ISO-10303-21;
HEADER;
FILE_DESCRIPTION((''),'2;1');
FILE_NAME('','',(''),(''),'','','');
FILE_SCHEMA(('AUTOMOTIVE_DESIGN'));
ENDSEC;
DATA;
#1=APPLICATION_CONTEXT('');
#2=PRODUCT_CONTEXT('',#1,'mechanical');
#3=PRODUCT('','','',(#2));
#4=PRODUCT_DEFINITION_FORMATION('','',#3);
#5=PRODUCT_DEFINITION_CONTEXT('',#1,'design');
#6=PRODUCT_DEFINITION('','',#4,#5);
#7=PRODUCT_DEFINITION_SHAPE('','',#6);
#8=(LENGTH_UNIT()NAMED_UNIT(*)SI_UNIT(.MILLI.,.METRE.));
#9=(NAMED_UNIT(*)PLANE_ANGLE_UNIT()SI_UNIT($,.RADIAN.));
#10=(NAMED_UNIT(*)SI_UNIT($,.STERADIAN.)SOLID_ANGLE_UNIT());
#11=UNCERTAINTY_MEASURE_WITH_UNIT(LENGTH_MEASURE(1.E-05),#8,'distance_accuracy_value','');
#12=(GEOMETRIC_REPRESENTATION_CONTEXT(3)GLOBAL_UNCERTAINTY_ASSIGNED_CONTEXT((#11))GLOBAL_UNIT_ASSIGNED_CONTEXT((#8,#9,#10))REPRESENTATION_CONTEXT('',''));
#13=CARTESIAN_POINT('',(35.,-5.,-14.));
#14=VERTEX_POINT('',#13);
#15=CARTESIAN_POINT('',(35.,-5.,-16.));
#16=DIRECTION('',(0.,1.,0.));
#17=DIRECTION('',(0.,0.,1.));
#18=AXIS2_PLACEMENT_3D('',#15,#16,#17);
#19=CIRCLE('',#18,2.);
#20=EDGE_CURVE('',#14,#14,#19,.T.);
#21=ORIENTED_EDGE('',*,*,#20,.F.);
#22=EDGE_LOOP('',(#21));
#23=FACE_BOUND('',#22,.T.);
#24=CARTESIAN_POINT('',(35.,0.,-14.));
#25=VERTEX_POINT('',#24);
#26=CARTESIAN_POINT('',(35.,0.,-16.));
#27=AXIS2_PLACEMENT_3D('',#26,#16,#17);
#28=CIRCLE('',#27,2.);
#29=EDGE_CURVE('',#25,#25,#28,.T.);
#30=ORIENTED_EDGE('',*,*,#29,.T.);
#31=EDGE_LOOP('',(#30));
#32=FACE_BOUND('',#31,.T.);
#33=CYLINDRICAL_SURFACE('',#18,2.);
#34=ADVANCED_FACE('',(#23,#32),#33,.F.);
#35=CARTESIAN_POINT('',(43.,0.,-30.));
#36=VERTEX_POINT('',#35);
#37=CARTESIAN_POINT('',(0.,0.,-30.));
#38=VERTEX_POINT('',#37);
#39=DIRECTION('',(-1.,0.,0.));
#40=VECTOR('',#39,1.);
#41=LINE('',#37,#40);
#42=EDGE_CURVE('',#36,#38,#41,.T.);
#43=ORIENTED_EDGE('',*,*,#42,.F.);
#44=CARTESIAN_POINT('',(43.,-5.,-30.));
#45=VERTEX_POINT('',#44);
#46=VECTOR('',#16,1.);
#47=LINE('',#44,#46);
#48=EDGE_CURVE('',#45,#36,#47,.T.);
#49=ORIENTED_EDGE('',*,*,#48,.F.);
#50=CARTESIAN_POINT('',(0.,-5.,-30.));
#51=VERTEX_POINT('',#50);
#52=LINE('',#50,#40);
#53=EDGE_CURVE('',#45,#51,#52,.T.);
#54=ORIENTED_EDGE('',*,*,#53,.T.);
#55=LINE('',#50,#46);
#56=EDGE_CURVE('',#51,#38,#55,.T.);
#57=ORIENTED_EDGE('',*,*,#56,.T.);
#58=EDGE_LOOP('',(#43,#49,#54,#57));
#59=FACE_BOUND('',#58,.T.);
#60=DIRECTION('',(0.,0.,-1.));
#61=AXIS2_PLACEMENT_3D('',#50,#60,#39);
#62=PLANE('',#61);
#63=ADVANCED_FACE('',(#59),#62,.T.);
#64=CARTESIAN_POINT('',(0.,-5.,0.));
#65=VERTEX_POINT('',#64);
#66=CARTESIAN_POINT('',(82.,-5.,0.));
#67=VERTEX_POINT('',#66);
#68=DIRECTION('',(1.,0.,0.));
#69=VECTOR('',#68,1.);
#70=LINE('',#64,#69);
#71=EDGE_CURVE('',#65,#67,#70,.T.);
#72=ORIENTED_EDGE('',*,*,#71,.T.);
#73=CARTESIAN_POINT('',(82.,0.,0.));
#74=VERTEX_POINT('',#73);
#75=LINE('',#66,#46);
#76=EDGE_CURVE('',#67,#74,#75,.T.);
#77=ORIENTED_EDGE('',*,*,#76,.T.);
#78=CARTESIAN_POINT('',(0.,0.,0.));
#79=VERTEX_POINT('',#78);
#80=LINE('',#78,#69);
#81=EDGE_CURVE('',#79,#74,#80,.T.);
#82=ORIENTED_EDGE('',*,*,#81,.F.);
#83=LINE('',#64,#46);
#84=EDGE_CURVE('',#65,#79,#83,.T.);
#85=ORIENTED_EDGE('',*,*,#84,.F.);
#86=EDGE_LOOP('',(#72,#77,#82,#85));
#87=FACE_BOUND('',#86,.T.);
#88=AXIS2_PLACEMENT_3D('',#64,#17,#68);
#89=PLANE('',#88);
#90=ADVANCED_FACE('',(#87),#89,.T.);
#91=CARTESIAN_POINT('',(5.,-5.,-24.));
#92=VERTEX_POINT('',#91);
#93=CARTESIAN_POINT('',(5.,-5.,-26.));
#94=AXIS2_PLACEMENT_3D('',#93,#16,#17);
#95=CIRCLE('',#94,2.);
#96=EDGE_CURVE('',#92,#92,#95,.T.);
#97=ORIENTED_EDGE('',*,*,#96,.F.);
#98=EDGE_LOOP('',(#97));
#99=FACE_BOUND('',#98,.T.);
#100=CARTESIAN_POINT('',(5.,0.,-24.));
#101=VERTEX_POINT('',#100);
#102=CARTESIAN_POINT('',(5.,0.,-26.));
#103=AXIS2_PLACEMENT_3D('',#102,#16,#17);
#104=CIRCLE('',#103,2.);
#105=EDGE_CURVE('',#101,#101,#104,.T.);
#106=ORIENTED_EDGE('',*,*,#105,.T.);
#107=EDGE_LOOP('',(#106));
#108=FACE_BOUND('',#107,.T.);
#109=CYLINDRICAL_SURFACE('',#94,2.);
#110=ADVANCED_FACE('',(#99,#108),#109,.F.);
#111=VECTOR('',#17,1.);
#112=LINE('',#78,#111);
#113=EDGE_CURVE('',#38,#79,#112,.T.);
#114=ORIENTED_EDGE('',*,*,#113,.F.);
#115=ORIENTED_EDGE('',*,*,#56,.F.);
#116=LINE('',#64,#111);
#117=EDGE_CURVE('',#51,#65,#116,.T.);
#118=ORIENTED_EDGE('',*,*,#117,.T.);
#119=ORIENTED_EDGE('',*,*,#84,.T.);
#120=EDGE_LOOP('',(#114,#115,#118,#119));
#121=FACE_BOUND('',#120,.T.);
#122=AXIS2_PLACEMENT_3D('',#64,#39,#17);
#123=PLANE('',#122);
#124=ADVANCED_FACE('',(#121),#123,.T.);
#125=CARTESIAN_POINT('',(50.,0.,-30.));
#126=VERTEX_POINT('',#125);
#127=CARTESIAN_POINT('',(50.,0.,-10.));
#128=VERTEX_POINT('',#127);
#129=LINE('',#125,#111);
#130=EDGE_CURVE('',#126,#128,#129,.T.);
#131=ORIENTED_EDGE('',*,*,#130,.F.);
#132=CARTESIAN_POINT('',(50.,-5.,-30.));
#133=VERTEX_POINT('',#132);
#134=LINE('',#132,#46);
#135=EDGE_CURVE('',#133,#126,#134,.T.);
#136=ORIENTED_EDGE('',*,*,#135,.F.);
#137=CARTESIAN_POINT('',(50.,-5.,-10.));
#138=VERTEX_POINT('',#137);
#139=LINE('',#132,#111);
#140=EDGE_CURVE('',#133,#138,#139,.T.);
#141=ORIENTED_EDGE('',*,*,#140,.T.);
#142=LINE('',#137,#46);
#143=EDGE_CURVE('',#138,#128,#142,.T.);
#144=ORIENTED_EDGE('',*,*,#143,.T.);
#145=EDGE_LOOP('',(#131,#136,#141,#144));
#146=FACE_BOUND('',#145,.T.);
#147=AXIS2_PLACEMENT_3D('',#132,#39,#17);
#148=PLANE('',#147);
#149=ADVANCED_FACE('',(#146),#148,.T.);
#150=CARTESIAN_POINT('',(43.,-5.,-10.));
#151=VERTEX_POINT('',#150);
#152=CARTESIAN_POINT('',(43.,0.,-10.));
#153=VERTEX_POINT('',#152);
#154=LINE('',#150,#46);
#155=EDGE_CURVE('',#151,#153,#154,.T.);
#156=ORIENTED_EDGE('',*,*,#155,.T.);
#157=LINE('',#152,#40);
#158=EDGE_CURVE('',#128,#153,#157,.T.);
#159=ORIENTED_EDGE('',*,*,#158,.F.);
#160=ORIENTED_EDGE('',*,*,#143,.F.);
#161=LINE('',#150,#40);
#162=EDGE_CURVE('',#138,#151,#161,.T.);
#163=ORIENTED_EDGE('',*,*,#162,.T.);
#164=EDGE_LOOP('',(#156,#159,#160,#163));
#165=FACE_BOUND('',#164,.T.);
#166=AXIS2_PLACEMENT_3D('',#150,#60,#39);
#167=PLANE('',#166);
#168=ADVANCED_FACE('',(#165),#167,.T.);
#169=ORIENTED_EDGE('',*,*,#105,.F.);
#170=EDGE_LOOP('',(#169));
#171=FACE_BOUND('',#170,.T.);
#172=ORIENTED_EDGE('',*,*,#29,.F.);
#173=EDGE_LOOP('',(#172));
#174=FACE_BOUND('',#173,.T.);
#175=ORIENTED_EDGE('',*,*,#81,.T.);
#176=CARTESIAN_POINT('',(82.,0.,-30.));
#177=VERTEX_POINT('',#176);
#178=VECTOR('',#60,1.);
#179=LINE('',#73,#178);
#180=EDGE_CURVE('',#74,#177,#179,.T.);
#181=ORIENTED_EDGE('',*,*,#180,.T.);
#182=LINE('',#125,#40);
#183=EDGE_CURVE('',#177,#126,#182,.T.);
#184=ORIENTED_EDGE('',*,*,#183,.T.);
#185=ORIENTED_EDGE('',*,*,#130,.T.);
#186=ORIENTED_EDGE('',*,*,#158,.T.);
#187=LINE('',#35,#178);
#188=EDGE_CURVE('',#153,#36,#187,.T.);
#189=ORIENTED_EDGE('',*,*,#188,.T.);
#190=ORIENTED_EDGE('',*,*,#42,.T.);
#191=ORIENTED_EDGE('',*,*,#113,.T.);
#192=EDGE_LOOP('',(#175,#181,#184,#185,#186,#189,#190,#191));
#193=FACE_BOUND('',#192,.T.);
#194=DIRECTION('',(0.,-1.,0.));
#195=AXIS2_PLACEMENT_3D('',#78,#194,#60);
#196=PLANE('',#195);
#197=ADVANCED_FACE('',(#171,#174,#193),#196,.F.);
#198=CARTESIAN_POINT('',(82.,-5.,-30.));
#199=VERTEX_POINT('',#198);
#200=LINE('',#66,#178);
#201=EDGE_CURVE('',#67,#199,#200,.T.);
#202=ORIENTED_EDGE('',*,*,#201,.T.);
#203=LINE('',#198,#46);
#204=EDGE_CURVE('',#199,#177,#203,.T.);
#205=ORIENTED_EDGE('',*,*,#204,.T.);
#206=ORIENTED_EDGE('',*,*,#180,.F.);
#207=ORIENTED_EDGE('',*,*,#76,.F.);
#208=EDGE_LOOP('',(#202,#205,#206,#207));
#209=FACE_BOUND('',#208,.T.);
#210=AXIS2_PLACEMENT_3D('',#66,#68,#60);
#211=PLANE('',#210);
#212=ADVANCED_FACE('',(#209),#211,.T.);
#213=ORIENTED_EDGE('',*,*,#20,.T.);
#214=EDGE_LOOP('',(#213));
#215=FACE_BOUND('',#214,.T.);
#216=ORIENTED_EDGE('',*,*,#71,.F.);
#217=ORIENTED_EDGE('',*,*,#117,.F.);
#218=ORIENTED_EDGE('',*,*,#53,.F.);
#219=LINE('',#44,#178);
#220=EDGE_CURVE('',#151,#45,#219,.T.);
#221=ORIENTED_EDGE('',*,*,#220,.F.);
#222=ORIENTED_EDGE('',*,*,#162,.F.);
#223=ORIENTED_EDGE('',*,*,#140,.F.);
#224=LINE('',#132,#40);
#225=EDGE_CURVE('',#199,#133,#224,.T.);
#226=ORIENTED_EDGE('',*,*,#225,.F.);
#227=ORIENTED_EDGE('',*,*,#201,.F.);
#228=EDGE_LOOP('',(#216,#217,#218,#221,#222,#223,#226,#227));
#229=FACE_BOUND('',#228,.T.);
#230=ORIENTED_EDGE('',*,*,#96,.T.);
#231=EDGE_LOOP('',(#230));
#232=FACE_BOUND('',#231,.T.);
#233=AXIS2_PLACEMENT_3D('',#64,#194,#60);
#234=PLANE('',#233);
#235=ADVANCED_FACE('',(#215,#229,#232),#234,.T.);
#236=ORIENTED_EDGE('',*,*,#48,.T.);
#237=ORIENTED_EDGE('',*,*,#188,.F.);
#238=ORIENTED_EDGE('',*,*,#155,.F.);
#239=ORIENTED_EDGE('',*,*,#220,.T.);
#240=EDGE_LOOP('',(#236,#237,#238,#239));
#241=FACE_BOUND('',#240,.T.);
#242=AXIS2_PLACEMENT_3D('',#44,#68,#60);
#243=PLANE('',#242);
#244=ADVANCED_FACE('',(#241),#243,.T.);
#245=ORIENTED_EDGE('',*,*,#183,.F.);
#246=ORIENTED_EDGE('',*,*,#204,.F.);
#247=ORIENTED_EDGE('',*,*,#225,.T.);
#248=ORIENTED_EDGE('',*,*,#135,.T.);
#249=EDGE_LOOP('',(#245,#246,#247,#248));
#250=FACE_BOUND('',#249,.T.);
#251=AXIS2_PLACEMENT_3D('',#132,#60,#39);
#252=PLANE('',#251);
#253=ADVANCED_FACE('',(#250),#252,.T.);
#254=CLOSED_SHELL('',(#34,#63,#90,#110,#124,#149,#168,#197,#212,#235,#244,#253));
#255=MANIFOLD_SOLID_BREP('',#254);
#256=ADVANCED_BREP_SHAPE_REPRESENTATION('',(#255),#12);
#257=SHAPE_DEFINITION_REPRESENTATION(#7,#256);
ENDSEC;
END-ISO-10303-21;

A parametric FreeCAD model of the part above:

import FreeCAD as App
import Part
import Sketcher
from FreeCAD import Vector
Q = App.Units.Quantity

doc = App.newDocument("Part")
body = doc.addObject("PartDesign::Body", "Body")

# Sketch on XZ plane
sketch1 = doc.addObject("Sketcher::SketchObject", "Sketch")
body.addObject(sketch1)
sketch1.AttachmentSupport = (doc.XZ_Plane, [""])
sketch1.MapMode = "FlatFace"
sketch1.addGeometry([
    Part.LineSegment(Vector(82, -30, 0), Vector(50, -30, 0)),  # 0
    Part.LineSegment(Vector(50, -30, 0), Vector(50, -10, 0)),  # 1
    Part.LineSegment(Vector(50, -10, 0), Vector(43, -10, 0)),  # 2
    Part.LineSegment(Vector(43, -10, 0), Vector(43, -30, 0)),  # 3
    Part.LineSegment(Vector(43, -30, 0), Vector(0, -30, 0)),  # 4
    Part.LineSegment(Vector(0, -30, 0), Vector(0, 0, 0)),  # 5
    Part.LineSegment(Vector(0, 0, 0), Vector(82, 0, 0)),  # 6
    Part.LineSegment(Vector(82, 0, 0), Vector(82, -30, 0)),  # 7
    Part.Circle(Vector(35, -16, 0), Vector(0, 0, 1), 2),  # 8
    Part.Circle(Vector(5, -26, 0), Vector(0, 0, 1), 2),  # 9
], False)
sketch1.addConstraint([
    Sketcher.Constraint("Coincident", 0, 2, 1, 1),
    Sketcher.Constraint("Coincident", 1, 2, 2, 1),
    Sketcher.Constraint("Coincident", 2, 2, 3, 1),
    Sketcher.Constraint("Coincident", 3, 2, 4, 1),
    Sketcher.Constraint("Coincident", 4, 2, 5, 1),
    Sketcher.Constraint("Coincident", 5, 2, 6, 1),
    Sketcher.Constraint("Coincident", 6, 2, 7, 1),
    Sketcher.Constraint("Coincident", 7, 2, 0, 1),
    Sketcher.Constraint("Horizontal", 0),
    Sketcher.Constraint("Vertical", 1),
    Sketcher.Constraint("Horizontal", 2),
    Sketcher.Constraint("Vertical", 3),
    Sketcher.Constraint("Horizontal", 4),
    Sketcher.Constraint("Vertical", 5),
    Sketcher.Constraint("Horizontal", 6),
    Sketcher.Constraint("Vertical", 7),
    Sketcher.Constraint("Coincident", 5, 2, -1, 1),
    Sketcher.Constraint("Equal", 8, 9),
    Sketcher.Constraint("Horizontal", 0, 2, 3, 2),
    Sketcher.Constraint("Diameter", 8, Q("4 mm")),
    Sketcher.Constraint("DistanceX", 0, 2, 0, 1, Q("32 mm")),
    Sketcher.Constraint("DistanceX", 2, 2, 2, 1, Q("7 mm")),
    Sketcher.Constraint("DistanceX", 4, 2, 4, 1, Q("43 mm")),
    Sketcher.Constraint("DistanceY", 1, 1, 1, 2, Q("20 mm")),
    Sketcher.Constraint("DistanceY", 5, 1, 5, 2, Q("30 mm")),
    Sketcher.Constraint("DistanceX", -1, 1, 8, 3, Q("35 mm")),
    Sketcher.Constraint("DistanceY", 8, 3, -1, 1, Q("16 mm")),
    Sketcher.Constraint("DistanceX", -1, 1, 9, 3, Q("5 mm")),
    Sketcher.Constraint("DistanceY", 9, 3, -1, 1, Q("26 mm")),
])
pad1 = doc.addObject("PartDesign::Pad", "Pad")
body.addObject(pad1)
pad1.Profile = sketch1
pad1.Length = 5

doc.recompute()
